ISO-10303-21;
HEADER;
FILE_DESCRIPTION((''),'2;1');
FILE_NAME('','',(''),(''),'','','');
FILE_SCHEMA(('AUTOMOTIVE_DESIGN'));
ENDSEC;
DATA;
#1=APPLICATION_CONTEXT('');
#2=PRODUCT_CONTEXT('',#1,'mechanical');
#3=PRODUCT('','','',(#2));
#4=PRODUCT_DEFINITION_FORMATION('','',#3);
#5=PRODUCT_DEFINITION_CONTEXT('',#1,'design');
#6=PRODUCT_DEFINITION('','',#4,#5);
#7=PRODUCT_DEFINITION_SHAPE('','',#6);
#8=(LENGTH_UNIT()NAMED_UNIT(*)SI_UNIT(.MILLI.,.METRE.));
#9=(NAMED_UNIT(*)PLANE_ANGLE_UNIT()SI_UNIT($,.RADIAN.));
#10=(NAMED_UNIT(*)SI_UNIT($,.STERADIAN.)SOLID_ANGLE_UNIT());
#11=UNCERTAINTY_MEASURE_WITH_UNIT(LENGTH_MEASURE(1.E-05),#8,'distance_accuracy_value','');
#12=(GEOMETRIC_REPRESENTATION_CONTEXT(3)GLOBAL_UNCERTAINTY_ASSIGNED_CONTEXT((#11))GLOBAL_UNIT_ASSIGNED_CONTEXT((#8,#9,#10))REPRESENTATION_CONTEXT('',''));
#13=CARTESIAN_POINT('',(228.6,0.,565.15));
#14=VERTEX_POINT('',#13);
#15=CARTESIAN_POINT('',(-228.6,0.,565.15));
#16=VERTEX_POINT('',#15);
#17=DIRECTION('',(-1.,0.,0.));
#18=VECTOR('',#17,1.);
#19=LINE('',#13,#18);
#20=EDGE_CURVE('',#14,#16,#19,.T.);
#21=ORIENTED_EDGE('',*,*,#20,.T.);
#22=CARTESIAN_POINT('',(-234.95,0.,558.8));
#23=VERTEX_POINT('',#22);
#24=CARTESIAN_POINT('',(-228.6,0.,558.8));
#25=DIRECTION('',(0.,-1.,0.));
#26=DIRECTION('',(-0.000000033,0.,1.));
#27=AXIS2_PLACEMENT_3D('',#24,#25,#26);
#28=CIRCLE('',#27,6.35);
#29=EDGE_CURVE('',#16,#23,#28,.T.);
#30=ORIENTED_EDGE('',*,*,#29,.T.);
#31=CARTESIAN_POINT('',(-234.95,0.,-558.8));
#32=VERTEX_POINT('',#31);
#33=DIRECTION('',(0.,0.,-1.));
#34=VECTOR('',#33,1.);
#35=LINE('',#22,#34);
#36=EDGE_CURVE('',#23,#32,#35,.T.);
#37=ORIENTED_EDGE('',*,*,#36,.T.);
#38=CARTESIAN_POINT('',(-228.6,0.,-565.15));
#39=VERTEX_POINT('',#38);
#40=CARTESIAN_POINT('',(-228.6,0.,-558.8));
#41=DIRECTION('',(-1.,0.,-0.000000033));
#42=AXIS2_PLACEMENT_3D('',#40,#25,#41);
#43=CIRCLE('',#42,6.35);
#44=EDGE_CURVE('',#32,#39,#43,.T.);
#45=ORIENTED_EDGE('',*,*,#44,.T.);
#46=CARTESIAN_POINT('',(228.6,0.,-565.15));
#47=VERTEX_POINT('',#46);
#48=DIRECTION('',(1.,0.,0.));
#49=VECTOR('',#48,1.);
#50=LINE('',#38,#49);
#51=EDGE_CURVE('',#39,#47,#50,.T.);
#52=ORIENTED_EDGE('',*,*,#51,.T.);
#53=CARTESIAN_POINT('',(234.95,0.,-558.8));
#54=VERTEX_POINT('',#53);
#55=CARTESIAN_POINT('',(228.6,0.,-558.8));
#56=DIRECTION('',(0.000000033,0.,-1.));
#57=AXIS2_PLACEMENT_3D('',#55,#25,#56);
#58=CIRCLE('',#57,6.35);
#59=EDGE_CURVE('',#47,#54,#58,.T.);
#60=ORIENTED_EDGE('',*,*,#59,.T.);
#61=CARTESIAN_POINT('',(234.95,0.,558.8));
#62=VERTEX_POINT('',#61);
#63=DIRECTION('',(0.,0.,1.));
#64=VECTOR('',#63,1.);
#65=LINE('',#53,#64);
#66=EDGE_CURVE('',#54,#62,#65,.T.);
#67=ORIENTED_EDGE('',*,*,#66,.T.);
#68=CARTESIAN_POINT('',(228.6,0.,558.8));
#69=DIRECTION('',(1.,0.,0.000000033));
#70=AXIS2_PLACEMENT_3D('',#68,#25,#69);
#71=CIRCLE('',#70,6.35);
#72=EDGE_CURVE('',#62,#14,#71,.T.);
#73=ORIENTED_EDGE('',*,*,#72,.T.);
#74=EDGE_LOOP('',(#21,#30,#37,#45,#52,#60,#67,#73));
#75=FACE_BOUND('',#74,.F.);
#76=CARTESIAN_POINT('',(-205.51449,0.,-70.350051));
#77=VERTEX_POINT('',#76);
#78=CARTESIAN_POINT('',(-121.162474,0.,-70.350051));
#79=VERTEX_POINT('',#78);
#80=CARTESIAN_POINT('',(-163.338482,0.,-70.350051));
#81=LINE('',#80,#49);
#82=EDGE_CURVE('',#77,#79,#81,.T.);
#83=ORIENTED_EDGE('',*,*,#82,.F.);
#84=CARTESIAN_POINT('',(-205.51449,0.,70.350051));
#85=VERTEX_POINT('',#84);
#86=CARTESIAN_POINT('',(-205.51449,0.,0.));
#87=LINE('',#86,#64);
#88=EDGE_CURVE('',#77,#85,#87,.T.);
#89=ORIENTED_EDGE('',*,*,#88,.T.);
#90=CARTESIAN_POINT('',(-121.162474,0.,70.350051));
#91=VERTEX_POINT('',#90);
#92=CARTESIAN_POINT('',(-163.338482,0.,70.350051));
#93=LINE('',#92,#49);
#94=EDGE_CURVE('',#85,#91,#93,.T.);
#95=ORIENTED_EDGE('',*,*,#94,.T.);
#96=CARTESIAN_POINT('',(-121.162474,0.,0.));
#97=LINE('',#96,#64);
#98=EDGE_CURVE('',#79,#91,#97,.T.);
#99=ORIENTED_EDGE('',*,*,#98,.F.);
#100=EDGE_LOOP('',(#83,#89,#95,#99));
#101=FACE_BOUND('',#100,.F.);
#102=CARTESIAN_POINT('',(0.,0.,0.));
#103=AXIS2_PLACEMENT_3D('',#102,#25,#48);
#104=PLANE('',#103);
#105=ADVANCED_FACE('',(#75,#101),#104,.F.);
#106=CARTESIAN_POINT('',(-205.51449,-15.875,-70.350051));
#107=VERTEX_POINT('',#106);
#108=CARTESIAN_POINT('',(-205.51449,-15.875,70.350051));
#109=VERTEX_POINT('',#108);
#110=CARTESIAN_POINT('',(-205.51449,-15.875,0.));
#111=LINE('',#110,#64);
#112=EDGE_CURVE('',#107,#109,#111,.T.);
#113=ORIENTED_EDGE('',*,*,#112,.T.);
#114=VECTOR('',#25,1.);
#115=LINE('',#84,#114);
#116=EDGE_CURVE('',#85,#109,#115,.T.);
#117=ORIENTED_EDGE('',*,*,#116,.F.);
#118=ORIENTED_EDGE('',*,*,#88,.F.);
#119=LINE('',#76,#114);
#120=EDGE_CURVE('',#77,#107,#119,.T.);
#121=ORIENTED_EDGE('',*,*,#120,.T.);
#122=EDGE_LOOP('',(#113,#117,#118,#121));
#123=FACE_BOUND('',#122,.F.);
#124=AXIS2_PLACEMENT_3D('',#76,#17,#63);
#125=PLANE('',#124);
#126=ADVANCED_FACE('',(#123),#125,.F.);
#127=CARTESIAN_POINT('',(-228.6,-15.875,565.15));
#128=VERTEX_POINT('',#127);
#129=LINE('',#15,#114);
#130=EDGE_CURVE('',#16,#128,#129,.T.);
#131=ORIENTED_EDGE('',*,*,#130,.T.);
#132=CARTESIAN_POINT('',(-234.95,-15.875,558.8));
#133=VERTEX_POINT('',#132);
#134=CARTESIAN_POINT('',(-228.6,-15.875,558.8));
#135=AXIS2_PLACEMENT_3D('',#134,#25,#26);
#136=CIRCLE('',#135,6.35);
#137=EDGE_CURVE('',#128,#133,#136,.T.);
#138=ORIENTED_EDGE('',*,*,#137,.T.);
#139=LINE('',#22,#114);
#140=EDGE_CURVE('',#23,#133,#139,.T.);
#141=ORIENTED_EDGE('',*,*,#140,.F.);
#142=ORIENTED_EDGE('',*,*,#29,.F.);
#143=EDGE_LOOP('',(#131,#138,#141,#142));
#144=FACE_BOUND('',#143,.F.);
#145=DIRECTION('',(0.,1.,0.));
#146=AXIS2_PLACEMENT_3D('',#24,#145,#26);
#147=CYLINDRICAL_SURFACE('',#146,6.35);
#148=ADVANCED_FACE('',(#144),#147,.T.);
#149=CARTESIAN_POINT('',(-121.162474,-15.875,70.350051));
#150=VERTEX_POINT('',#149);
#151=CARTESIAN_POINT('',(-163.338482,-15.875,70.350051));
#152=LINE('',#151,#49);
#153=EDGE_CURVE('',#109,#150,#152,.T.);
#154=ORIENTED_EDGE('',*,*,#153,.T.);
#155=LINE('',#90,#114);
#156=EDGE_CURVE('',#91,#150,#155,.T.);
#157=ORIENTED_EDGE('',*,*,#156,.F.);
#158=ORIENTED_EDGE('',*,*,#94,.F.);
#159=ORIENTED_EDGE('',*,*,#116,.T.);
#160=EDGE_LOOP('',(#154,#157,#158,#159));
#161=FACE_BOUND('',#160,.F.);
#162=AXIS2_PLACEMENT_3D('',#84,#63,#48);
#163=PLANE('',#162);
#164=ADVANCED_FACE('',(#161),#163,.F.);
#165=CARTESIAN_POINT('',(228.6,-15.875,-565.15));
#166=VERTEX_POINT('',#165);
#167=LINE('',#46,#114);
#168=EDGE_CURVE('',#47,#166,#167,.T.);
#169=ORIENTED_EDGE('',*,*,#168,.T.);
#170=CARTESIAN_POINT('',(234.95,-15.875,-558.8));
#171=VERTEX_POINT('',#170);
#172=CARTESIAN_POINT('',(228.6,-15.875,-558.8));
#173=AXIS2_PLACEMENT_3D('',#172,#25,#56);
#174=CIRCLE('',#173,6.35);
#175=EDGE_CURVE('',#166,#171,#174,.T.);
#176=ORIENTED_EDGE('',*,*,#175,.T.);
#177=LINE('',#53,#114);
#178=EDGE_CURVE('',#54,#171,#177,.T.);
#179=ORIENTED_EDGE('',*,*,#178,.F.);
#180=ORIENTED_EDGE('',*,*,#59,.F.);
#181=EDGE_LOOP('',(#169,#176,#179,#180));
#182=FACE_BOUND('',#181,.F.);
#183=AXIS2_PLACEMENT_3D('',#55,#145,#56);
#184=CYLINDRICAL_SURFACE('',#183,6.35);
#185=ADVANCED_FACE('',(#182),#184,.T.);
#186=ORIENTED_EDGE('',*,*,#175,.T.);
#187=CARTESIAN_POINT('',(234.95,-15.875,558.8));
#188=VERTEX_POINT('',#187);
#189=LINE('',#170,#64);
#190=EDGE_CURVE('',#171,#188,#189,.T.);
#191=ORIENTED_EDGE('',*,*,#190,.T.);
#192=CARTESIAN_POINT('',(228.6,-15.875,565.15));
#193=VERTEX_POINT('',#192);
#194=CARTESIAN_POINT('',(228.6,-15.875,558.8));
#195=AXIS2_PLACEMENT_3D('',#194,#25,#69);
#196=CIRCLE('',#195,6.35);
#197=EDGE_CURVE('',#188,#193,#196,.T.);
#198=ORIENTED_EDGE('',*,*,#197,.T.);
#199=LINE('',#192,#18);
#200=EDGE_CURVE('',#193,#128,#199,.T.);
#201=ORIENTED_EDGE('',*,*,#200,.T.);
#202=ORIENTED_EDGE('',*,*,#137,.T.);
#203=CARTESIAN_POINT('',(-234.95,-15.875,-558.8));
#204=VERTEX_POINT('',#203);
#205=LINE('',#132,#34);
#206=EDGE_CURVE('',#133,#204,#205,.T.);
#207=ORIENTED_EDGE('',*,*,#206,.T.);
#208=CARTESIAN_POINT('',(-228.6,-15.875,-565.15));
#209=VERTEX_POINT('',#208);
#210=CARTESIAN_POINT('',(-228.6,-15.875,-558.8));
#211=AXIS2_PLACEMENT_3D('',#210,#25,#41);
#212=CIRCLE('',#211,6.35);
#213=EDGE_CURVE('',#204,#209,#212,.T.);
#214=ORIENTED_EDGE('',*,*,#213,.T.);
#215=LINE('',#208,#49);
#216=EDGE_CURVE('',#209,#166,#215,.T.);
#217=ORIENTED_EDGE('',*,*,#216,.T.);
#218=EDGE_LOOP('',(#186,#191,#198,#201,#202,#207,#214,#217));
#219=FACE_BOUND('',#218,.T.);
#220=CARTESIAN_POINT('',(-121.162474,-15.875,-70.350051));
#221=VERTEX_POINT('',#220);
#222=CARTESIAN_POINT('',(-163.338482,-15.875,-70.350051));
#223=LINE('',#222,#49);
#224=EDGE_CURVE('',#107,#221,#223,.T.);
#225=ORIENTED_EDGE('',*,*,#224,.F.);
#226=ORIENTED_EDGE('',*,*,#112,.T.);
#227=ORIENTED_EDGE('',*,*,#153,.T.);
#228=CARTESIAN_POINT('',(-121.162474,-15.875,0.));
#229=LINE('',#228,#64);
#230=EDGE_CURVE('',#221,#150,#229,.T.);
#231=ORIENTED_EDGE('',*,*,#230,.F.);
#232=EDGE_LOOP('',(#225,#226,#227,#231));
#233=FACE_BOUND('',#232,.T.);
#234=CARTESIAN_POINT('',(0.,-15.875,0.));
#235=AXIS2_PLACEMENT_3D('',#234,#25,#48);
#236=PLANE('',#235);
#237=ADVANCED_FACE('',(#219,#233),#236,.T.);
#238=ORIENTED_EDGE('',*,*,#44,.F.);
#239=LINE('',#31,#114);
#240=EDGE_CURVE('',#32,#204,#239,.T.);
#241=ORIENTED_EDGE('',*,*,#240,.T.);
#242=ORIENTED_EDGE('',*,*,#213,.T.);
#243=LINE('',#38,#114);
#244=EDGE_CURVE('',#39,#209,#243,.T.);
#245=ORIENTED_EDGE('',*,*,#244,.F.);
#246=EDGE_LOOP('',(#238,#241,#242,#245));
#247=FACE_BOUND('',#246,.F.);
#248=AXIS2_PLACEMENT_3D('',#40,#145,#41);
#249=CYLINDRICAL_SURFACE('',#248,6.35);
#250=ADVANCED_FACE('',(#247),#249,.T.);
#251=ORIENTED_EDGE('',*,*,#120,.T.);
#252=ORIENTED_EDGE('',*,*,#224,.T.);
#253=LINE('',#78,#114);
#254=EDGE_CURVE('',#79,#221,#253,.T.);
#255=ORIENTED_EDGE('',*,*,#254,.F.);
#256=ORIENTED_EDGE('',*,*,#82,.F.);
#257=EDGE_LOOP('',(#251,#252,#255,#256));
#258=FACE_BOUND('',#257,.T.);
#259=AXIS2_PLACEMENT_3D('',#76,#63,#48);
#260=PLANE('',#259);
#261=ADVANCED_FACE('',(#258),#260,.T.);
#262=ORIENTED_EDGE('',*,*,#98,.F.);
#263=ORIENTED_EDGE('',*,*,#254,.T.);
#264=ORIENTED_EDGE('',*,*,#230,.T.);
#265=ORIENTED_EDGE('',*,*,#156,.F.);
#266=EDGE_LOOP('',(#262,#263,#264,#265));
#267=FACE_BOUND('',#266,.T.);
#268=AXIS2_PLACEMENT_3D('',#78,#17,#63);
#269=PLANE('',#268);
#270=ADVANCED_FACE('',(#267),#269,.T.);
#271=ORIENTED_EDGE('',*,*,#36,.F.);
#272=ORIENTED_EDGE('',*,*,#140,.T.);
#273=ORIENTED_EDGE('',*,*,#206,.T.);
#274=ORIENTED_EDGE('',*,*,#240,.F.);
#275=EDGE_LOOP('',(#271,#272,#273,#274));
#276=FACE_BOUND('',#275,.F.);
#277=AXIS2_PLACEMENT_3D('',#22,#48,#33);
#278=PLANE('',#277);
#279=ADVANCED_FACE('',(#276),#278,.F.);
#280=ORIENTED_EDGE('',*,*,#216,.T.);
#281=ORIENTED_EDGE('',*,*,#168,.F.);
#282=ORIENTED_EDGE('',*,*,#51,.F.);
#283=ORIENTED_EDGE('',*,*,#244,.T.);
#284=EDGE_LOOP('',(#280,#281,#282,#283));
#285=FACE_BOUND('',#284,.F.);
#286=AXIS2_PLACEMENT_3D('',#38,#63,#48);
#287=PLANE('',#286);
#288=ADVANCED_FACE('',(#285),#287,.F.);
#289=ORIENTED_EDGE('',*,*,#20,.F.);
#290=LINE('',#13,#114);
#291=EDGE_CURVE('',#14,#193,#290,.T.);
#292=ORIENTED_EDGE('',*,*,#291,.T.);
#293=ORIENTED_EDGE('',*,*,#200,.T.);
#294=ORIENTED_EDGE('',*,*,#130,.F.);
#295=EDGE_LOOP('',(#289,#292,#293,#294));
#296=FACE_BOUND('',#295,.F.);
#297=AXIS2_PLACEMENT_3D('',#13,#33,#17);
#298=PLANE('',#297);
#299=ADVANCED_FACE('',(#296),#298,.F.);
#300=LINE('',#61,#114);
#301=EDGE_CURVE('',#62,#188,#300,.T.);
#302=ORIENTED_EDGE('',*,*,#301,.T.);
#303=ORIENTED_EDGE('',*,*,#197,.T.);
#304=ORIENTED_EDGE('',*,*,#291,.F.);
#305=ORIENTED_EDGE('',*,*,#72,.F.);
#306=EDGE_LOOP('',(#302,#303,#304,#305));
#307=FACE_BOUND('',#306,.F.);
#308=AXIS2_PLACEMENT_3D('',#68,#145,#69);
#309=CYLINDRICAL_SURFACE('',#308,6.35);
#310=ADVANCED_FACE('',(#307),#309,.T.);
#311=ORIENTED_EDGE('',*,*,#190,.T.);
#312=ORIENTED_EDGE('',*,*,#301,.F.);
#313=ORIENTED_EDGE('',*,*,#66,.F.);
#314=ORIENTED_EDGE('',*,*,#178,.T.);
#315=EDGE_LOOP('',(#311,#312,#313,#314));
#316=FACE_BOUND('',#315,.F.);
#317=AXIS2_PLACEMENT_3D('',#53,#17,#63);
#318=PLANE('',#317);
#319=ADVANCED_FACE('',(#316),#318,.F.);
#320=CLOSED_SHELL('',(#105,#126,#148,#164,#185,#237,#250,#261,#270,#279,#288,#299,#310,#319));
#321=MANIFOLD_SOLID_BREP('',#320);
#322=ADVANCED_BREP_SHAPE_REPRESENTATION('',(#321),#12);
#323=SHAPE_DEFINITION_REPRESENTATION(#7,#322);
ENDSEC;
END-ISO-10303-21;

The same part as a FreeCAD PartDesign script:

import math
import FreeCAD as App
import Part
import Sketcher
Q = App.Units.Quantity


def add_polygon(sketch, points):
    """Adds a closed chain of lines whose ends are joined by coincident constraints."""
    first, n = sketch.GeometryCount, len(points)
    for a, b in zip(points, points[1:] + points[:1]):
        sketch.addGeometry(Part.LineSegment(App.Vector(*a, 0), App.Vector(*b, 0)), False)
    for i in range(n):
        sketch.addConstraint(Sketcher.Constraint("Coincident", first + i, 2, first + (i + 1) % n, 1))

doc = App.newDocument("Part")
body = doc.addObject("PartDesign::Body", "Body")

# Sketch on XZ plane
sketch1 = doc.addObject("Sketcher::SketchObject", "Sketch")
body.addObject(sketch1)
sketch1.AttachmentSupport = (doc.XZ_Plane, [""])
sketch1.MapMode = "FlatFace"
sketch1.addGeometry(Part.LineSegment(App.Vector(-228.6, -565.15, 0), App.Vector(228.6, -565.15, 0)), False)  # 0
sketch1.addGeometry(Part.ArcOfCircle(Part.Circle(App.Vector(228.6, -558.8, 0), App.Vector(0, 0, 1), 6.35), math.radians(-89.999998), math.radians(-0.000002)), False)  # 1
sketch1.addGeometry(Part.LineSegment(App.Vector(234.95, -558.8, 0), App.Vector(234.95, 558.8, 0)), False)  # 2
sketch1.addGeometry(Part.ArcOfCircle(Part.Circle(App.Vector(228.6, 558.8, 0), App.Vector(0, 0, 1), 6.35), math.radians(0.000002), math.radians(89.999998)), False)  # 3
sketch1.addGeometry(Part.LineSegment(App.Vector(228.6, 565.15, 0), App.Vector(-228.6, 565.15, 0)), False)  # 4
sketch1.addGeometry(Part.ArcOfCircle(Part.Circle(App.Vector(-228.6, 558.8, 0), App.Vector(0, 0, 1), 6.35), math.radians(90.000002), math.radians(179.999998)), False)  # 5
sketch1.addGeometry(Part.LineSegment(App.Vector(-234.95, 558.8, 0), App.Vector(-234.95, -558.8, 0)), False)  # 6
sketch1.addGeometry(Part.ArcOfCircle(Part.Circle(App.Vector(-228.6, -558.8, 0), App.Vector(0, 0, 1), 6.35), math.radians(-179.999998), math.radians(-90.000002)), False)  # 7
add_polygon(sketch1, [(-121.162474, -70.350051), (-205.51449, -70.350051), (-205.51449, 70.350051), (-121.162474, 70.350051)])  # lines 8-11
sketch1.addConstraint([
    Sketcher.Constraint("Tangent", 0, 2, 1, 1),
    Sketcher.Constraint("Tangent", 1, 2, 2, 1),
    Sketcher.Constraint("Tangent", 2, 2, 3, 1),
    Sketcher.Constraint("Tangent", 3, 2, 4, 1),
    Sketcher.Constraint("Tangent", 4, 2, 5, 1),
    Sketcher.Constraint("Tangent", 5, 2, 6, 1),
    Sketcher.Constraint("Tangent", 6, 2, 7, 1),
    Sketcher.Constraint("Tangent", 7, 2, 0, 1),
    Sketcher.Constraint("Horizontal", 0),
    Sketcher.Constraint("Vertical", 2),
    Sketcher.Constraint("Horizontal", 4),
    Sketcher.Constraint("Vertical", 6),
    Sketcher.Constraint("Horizontal", 8),
    Sketcher.Constraint("Vertical", 9),
    Sketcher.Constraint("Horizontal", 10),
    Sketcher.Constraint("Vertical", 11),
    Sketcher.Constraint("Equal", 1, 3),
    Sketcher.Constraint("Equal", 3, 5),
    Sketcher.Constraint("Equal", 5, 7),
    Sketcher.Constraint("Symmetric", 1, 3, 5, 3, -1, 1),
    Sketcher.Constraint("DistanceX", 0, 1, 0, 2, Q("18 in")),
    Sketcher.Constraint("DistanceY", 2, 1, 2, 2, Q("44 in")),
    Sketcher.Constraint("Radius", 1, Q("0.25 in")),
    Sketcher.Constraint("DistanceY", 9, 1, 9, 2, Q("140.700102 mm")),
    Sketcher.Constraint("DistanceX", 8, 2, 8, 1, Q("84.352017 mm")),
    Sketcher.Constraint("DistanceX", 8, 2, -1, 1, Q("205.51449 mm")),
    Sketcher.Constraint("DistanceY", 8, 2, -1, 1, Q("70.350051 mm")),
])
pad1 = doc.addObject("PartDesign::Pad", "Pad")
body.addObject(pad1)
pad1.Profile = sketch1
pad1.Length = Q("0.625 in")

doc.recompute()
